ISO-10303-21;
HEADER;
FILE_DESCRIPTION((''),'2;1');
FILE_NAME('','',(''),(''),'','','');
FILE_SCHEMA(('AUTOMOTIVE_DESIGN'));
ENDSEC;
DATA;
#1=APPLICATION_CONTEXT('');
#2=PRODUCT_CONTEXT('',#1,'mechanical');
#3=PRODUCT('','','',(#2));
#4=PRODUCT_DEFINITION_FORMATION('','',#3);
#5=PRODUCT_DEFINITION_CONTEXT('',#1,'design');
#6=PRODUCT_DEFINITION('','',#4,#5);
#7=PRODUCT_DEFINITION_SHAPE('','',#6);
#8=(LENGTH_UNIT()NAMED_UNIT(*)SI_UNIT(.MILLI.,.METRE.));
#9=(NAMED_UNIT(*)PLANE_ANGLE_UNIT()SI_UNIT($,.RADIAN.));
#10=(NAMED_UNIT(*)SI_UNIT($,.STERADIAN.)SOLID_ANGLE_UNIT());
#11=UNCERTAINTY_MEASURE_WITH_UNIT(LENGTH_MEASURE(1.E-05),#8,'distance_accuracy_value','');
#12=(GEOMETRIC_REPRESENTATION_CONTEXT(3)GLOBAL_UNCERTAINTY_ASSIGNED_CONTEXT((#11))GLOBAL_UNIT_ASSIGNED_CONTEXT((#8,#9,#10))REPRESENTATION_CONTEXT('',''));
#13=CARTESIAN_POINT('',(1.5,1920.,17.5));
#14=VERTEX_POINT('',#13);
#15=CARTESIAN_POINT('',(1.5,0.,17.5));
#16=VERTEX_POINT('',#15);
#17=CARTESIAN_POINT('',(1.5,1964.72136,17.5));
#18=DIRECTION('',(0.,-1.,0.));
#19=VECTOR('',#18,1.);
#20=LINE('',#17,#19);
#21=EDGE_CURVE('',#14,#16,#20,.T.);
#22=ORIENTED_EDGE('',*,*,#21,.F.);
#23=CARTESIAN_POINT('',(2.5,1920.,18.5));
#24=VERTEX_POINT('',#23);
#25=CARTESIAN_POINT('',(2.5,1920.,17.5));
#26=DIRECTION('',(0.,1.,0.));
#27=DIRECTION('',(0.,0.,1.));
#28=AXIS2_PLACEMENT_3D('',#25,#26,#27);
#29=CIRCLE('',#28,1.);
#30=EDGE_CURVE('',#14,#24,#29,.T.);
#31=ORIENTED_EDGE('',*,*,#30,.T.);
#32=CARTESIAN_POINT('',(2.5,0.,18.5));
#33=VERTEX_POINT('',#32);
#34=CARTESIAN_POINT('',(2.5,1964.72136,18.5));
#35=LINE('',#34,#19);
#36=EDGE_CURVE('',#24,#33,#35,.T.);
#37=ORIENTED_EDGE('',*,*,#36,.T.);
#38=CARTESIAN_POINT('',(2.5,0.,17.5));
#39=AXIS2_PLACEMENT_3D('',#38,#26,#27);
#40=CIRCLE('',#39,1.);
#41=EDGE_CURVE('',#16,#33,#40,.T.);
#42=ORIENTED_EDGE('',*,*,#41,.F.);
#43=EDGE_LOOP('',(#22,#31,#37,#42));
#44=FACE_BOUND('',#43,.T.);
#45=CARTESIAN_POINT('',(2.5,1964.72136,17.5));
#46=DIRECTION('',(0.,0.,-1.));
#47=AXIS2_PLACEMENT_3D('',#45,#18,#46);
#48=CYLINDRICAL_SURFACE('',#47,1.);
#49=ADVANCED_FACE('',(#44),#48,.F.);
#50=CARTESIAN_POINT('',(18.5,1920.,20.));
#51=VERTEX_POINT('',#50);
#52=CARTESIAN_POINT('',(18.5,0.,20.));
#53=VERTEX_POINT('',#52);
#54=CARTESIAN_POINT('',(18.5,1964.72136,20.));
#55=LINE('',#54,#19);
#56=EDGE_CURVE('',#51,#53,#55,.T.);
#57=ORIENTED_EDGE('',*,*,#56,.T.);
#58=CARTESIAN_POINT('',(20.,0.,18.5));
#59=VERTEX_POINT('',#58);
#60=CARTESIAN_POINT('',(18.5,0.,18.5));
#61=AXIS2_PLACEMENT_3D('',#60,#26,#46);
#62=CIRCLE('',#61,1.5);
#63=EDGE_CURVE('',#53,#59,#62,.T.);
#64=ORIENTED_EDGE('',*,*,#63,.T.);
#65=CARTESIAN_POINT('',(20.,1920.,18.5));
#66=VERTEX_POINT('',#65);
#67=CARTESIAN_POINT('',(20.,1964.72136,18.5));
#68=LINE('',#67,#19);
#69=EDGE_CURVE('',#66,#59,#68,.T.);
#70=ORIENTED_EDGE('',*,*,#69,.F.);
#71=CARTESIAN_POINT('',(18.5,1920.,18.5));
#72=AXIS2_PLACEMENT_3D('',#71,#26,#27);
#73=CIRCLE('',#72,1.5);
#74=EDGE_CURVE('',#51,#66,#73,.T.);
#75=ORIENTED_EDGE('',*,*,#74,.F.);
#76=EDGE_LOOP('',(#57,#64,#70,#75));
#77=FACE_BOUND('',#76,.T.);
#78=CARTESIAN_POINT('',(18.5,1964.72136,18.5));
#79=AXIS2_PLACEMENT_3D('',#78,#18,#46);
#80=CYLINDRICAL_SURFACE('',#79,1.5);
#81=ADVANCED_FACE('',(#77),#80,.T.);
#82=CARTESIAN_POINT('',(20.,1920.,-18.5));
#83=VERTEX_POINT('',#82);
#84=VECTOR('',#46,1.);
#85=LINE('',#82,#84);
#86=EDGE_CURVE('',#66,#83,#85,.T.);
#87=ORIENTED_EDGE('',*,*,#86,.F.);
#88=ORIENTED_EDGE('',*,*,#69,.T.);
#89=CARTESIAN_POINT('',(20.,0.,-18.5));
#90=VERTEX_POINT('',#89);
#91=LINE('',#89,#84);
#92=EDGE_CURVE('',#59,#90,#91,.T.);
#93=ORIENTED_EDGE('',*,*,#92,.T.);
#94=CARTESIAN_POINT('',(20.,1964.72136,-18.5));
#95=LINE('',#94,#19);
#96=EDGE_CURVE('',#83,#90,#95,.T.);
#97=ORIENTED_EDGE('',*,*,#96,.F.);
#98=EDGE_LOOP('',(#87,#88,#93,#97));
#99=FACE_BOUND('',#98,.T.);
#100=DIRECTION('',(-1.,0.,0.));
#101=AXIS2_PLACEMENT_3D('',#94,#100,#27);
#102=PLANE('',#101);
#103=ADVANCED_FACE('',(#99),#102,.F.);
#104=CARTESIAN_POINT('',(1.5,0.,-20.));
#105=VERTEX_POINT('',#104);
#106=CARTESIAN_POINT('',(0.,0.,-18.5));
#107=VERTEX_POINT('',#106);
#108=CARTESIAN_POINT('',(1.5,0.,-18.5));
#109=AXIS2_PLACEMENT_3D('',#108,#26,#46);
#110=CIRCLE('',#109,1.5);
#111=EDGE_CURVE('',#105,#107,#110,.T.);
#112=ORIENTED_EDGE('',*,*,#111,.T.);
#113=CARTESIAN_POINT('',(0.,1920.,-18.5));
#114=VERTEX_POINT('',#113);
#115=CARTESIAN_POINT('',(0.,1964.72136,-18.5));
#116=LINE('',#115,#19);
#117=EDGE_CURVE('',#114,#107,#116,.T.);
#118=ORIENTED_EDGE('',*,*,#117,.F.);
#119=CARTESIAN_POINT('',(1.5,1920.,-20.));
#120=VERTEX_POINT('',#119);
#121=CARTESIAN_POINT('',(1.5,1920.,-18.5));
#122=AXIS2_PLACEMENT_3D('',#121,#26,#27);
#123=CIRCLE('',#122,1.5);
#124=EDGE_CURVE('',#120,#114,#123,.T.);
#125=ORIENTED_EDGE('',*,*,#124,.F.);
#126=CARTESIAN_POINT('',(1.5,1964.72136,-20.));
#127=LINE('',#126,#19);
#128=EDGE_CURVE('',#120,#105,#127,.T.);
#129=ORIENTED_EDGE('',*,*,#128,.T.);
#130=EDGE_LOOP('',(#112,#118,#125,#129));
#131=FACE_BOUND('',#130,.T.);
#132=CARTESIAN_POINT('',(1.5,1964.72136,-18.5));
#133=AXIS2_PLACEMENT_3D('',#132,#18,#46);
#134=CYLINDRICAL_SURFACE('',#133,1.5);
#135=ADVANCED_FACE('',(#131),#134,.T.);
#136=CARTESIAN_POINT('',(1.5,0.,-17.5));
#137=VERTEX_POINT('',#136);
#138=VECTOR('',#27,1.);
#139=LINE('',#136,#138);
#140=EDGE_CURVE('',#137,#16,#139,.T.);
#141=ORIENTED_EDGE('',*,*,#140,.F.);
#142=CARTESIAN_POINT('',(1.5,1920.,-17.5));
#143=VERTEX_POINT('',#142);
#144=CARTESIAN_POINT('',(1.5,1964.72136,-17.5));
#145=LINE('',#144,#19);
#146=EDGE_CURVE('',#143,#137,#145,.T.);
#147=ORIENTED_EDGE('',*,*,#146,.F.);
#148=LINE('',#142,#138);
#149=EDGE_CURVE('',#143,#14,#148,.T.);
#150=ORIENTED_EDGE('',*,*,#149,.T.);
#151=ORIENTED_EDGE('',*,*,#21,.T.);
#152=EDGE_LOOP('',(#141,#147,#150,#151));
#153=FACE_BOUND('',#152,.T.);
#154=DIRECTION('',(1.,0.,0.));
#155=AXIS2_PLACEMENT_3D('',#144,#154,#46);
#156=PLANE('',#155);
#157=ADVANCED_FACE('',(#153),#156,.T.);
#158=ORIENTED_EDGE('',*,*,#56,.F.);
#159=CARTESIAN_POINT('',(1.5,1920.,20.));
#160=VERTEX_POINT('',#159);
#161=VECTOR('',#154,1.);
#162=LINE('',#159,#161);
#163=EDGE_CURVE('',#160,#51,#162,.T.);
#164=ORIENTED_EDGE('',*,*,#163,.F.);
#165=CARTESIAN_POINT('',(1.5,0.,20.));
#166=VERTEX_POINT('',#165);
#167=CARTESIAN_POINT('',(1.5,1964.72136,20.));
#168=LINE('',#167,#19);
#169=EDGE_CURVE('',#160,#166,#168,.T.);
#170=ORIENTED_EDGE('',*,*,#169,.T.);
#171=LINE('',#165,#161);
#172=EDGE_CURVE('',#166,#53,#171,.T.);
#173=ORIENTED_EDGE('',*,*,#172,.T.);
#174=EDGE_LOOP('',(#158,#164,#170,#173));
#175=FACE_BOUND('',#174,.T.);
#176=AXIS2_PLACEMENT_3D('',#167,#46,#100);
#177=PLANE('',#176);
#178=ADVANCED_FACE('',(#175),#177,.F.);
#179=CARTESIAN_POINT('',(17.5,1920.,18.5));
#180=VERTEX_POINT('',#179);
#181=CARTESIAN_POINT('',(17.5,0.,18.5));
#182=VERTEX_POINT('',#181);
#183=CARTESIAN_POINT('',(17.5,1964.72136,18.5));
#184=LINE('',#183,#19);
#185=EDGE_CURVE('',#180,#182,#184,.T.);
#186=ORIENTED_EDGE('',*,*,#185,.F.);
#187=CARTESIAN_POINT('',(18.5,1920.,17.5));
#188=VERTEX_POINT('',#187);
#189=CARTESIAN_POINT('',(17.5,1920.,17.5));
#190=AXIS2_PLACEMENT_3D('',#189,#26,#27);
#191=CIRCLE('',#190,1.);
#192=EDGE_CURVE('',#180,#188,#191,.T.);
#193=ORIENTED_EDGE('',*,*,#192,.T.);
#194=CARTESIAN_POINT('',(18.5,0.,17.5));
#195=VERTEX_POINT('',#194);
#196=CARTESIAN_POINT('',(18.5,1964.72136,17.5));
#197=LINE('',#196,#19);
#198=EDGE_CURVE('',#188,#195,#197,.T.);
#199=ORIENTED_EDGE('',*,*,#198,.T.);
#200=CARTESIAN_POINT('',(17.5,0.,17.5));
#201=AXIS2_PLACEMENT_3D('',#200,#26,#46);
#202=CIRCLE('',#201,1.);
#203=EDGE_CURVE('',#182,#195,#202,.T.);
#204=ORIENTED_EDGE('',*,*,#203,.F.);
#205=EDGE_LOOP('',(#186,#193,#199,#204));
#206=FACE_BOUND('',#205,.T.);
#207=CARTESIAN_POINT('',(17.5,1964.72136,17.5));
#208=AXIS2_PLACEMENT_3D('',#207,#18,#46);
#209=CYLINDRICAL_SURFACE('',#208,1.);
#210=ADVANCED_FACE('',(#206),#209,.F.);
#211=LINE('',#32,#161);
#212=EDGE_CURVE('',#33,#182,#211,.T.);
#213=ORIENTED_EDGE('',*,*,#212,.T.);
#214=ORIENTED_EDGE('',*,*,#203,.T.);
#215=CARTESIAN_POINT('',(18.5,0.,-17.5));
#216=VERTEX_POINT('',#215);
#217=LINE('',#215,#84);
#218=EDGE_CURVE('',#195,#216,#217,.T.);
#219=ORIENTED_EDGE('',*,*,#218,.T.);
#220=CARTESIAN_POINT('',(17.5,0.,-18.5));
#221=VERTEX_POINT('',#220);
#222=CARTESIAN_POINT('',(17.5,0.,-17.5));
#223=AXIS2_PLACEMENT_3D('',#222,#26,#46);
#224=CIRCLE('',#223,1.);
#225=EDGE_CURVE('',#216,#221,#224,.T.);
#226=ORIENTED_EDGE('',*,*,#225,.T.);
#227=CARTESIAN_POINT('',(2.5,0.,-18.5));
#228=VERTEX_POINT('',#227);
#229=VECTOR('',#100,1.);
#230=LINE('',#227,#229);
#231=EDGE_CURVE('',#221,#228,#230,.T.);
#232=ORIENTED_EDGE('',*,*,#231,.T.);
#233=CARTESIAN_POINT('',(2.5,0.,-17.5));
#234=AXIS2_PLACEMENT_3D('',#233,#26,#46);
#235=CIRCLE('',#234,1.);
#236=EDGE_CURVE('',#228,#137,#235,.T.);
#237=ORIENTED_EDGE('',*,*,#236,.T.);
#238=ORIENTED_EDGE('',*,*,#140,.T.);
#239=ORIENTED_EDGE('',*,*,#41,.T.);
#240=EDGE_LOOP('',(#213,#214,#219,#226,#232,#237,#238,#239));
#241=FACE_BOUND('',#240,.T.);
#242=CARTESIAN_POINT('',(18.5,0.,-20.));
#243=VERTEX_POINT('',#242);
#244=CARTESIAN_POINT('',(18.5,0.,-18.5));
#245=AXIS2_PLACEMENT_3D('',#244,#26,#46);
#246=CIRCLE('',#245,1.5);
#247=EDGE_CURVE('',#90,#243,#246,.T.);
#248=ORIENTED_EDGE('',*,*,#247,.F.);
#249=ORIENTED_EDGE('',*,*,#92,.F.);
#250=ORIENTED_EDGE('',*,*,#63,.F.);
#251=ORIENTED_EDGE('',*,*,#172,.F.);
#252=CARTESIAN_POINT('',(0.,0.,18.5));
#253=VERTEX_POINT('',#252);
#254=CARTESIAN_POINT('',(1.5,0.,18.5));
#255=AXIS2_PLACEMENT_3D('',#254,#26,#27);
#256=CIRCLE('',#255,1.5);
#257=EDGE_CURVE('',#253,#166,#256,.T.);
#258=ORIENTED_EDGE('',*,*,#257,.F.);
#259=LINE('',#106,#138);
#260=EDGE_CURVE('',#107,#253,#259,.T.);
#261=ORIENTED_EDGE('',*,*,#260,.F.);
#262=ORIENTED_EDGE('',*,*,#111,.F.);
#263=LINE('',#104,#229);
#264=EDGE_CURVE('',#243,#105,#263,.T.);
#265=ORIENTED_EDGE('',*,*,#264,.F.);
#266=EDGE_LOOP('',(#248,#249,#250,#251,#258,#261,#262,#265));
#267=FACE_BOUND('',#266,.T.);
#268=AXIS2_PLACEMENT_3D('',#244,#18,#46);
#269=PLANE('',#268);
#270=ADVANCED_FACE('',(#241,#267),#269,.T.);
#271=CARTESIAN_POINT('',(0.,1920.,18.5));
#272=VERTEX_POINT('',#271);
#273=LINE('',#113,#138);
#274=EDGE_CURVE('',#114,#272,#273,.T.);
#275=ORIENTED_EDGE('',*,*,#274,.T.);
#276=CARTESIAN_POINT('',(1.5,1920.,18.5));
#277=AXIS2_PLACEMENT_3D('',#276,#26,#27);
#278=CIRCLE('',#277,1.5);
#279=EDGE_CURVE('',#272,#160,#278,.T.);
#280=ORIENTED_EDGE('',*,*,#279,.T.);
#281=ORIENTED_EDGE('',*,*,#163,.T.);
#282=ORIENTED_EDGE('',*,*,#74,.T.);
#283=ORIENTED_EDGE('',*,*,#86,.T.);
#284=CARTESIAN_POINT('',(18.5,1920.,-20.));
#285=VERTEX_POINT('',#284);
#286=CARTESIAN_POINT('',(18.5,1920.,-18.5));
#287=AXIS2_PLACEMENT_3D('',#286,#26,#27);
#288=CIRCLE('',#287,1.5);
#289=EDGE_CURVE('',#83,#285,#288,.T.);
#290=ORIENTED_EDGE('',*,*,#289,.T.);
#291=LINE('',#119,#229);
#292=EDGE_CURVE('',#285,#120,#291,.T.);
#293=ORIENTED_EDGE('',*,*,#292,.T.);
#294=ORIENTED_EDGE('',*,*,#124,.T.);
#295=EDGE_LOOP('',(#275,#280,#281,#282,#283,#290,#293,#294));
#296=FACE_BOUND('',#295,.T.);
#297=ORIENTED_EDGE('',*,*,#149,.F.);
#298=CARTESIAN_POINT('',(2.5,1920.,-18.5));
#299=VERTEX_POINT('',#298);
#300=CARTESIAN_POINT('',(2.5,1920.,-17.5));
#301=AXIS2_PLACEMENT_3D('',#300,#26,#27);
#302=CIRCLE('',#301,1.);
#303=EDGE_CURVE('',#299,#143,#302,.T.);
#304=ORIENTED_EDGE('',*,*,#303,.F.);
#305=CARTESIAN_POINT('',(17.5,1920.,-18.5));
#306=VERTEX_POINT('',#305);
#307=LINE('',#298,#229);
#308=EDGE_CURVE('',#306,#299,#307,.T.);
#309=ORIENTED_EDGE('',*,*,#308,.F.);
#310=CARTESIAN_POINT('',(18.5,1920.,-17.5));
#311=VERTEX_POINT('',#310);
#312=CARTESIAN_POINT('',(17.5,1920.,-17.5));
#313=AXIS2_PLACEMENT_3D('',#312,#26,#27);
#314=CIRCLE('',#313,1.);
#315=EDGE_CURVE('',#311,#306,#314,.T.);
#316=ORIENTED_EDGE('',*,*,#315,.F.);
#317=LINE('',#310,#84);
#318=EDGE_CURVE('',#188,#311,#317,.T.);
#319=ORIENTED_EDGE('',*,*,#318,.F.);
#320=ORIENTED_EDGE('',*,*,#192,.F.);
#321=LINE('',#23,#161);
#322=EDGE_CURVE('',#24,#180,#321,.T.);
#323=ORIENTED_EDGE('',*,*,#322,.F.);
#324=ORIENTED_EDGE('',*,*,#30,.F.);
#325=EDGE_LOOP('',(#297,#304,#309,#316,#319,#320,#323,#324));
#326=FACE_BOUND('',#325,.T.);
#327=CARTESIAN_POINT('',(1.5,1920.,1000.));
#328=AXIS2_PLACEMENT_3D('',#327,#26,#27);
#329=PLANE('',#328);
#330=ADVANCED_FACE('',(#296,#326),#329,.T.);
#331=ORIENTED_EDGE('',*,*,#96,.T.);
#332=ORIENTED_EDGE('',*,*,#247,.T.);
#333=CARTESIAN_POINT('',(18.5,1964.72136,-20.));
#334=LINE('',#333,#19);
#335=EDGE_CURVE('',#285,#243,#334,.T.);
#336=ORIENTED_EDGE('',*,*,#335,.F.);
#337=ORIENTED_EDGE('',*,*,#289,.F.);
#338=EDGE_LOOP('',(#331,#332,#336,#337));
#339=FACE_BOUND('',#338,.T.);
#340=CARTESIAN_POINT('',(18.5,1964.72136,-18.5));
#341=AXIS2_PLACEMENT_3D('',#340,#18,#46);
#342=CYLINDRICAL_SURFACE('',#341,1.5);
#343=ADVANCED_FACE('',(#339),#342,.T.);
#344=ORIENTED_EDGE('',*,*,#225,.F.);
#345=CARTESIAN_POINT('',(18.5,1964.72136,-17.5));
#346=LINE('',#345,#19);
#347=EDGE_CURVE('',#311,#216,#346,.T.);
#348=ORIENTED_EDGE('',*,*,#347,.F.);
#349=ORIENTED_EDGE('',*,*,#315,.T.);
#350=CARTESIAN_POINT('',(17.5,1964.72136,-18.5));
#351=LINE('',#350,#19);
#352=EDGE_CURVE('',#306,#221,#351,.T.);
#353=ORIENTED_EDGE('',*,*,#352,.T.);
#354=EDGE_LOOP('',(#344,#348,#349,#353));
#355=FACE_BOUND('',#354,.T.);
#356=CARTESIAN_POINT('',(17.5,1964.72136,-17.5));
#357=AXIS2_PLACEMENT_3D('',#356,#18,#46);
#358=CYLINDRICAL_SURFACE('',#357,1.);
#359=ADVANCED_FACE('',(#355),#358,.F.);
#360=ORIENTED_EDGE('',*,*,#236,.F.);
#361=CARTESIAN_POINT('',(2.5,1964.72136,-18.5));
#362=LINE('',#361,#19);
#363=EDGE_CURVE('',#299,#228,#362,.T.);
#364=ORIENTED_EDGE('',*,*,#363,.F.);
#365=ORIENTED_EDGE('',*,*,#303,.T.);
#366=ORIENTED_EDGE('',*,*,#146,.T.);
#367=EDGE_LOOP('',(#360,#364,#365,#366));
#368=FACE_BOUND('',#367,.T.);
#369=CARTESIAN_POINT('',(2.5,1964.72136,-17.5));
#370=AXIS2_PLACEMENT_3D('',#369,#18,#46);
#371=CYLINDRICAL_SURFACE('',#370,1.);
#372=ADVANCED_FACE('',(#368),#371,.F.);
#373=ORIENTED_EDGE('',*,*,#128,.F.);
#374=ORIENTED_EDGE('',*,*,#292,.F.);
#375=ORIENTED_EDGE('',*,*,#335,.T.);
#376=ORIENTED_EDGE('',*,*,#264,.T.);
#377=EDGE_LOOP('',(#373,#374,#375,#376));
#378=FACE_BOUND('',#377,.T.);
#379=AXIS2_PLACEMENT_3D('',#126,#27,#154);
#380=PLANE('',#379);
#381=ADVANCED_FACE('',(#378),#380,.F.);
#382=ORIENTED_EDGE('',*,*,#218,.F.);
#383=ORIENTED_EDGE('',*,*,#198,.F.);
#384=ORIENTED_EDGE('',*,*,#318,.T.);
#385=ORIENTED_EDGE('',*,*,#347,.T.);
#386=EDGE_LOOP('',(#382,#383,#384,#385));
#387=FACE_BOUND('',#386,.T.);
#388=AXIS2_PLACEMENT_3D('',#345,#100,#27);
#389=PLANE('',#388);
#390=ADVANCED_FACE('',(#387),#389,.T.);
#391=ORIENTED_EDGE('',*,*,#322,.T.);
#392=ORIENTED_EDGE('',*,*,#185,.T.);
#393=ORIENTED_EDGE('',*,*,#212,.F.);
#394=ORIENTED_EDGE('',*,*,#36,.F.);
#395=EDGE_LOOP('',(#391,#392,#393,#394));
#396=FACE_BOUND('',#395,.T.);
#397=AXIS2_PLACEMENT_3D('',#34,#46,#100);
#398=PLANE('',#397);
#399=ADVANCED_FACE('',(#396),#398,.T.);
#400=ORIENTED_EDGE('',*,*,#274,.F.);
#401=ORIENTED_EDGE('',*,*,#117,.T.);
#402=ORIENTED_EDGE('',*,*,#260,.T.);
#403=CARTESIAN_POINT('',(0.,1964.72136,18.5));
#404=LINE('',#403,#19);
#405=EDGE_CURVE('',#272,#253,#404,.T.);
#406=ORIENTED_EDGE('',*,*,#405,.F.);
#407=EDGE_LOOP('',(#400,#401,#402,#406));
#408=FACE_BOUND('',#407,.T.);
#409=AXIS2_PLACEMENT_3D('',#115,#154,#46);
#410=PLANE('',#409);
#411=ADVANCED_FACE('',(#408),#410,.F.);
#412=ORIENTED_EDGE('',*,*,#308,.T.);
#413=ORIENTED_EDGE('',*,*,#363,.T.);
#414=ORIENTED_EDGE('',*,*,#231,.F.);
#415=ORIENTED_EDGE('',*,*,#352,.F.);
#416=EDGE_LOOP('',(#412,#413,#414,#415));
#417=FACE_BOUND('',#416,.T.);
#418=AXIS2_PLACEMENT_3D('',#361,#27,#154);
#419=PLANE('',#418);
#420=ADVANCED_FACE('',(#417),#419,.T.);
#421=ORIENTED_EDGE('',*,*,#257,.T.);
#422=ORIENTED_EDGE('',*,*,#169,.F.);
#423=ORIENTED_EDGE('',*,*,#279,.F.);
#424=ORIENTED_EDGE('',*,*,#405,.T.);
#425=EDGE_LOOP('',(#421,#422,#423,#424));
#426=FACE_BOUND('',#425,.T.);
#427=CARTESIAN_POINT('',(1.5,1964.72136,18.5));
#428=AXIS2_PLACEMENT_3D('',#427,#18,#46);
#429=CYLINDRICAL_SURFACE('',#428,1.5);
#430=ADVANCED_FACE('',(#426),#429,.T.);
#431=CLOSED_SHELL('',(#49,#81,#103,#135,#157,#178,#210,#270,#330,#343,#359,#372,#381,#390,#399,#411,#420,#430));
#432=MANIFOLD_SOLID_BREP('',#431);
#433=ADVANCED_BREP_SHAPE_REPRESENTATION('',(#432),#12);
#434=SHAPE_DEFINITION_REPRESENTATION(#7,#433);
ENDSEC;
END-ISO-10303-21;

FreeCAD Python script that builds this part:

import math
import FreeCAD as App
import Part
import Sketcher
from FreeCAD import Vector

doc = App.newDocument("Part")
params = doc.addObject("Spreadsheet::Sheet", "Params")
for row, (alias, value) in enumerate([
    ("sketch1_radius", "1 mm"),
    ("sketch1_radius2", "1.5 mm"),
    ("sketch1_width", "17 mm"),
    ("sketch1_height", "37 mm"),
    ("pad1_length", "1920 mm"),
], start=1):
    params.set(f"A{row}", alias)
    params.set(f"B{row}", "=" + value)
    params.setAlias(f"B{row}", alias)

body = doc.addObject("PartDesign::Body", "Body")

# Sketch on XZ plane
sketch1 = body.newObject("Sketcher::SketchObject", "Sketch")
sketch1.AttachmentSupport = (doc.getObject("XZ_Plane"), [""])
sketch1.MapMode = "FlatFace"
sketch1.addGeometry([
    Part.LineSegment(Vector(0, -18.5, 0), Vector(0, 18.5, 0)),  # 0
    Part.ArcOfCircle(Part.Circle(Vector(1.5, 18.5, 0), Vector(0, 0, 1), 1.5), math.radians(90), math.radians(180)),  # 1
    Part.LineSegment(Vector(1.5, 20, 0), Vector(18.5, 20, 0)),  # 2
    Part.ArcOfCircle(Part.Circle(Vector(18.5, 18.5, 0), Vector(0, 0, 1), 1.5), math.radians(0), math.radians(90)),  # 3
    Part.LineSegment(Vector(20, 18.5, 0), Vector(20, -18.5, 0)),  # 4
    Part.ArcOfCircle(Part.Circle(Vector(18.5, -18.5, 0), Vector(0, 0, 1), 1.5), math.radians(-90), math.radians(0)),  # 5
    Part.LineSegment(Vector(18.5, -20, 0), Vector(1.5, -20, 0)),  # 6
    Part.ArcOfCircle(Part.Circle(Vector(1.5, -18.5, 0), Vector(0, 0, 1), 1.5), math.radians(180), math.radians(270)),  # 7
    Part.LineSegment(Vector(1.5, 17.5, 0), Vector(1.5, -17.5, 0)),  # 8
    Part.ArcOfCircle(Part.Circle(Vector(2.5, -17.5, 0), Vector(0, 0, 1), 1), math.radians(-180), math.radians(-90)),  # 9
    Part.LineSegment(Vector(2.5, -18.5, 0), Vector(17.5, -18.5, 0)),  # 10
    Part.ArcOfCircle(Part.Circle(Vector(17.5, -17.5, 0), Vector(0, 0, 1), 1), math.radians(-90), math.radians(0)),  # 11
    Part.LineSegment(Vector(18.5, -17.5, 0), Vector(18.5, 17.5, 0)),  # 12
    Part.ArcOfCircle(Part.Circle(Vector(17.5, 17.5, 0), Vector(0, 0, 1), 1), math.radians(0), math.radians(90)),  # 13
    Part.LineSegment(Vector(17.5, 18.5, 0), Vector(2.5, 18.5, 0)),  # 14
    Part.ArcOfCircle(Part.Circle(Vector(2.5, 17.5, 0), Vector(0, 0, 1), 1), math.radians(90), math.radians(180)),  # 15
], False)
sketch1.addConstraint([
    Sketcher.Constraint("Tangent", 0, 2, 1, 2),
    Sketcher.Constraint("Tangent", 1, 1, 2, 1),
    Sketcher.Constraint("Tangent", 2, 2, 3, 2),
    Sketcher.Constraint("Tangent", 3, 1, 4, 1),
    Sketcher.Constraint("Tangent", 4, 2, 5, 2),
    Sketcher.Constraint("Tangent", 5, 1, 6, 1),
    Sketcher.Constraint("Tangent", 6, 2, 7, 2),
    Sketcher.Constraint("Tangent", 7, 1, 0, 1),
    Sketcher.Constraint("Tangent", 8, 2, 9, 1),
    Sketcher.Constraint("Tangent", 9, 2, 10, 1),
    Sketcher.Constraint("Tangent", 10, 2, 11, 1),
    Sketcher.Constraint("Tangent", 11, 2, 12, 1),
    Sketcher.Constraint("Tangent", 12, 2, 13, 1),
    Sketcher.Constraint("Tangent", 13, 2, 14, 1),
    Sketcher.Constraint("Tangent", 14, 2, 15, 1),
    Sketcher.Constraint("Tangent", 15, 2, 8, 1),
    Sketcher.Constraint("Vertical", 0),
    Sketcher.Constraint("Horizontal", 2),
    Sketcher.Constraint("Vertical", 4),
    Sketcher.Constraint("Horizontal", 6),
    Sketcher.Constraint("Vertical", 8),
    Sketcher.Constraint("Horizontal", 10),
    Sketcher.Constraint("Vertical", 12),
    Sketcher.Constraint("Horizontal", 14),
    Sketcher.Constraint("Equal", 1, 3),
    Sketcher.Constraint("Equal", 3, 5),
    Sketcher.Constraint("Equal", 5, 7),
    Sketcher.Constraint("Equal", 9, 11),
    Sketcher.Constraint("Equal", 11, 13),
    Sketcher.Constraint("Equal", 13, 15),
    Sketcher.Constraint("Symmetric", 0, 2, 7, 1, -1, 1),
    Sketcher.Constraint("Horizontal", 7, 1, 9, 2),
    Sketcher.Constraint("Horizontal", 3, 1, 13, 2),
    Sketcher.Constraint("Vertical", 6, 2, 8, 2),
    Sketcher.Constraint("Vertical", 5, 1, 11, 2),
    Sketcher.Constraint("Radius", 9, 1.0),
    Sketcher.Constraint("Radius", 1, 1.5),
    Sketcher.Constraint("DistanceX", 2, 1, 2, 2, 17.0),
    Sketcher.Constraint("DistanceY", 0, 1, 0, 2, 37.0),
])
sketch1.setExpression("Constraints[35]", "Params.sketch1_radius")
sketch1.setExpression("Constraints[36]", "Params.sketch1_radius2")
sketch1.setExpression("Constraints[37]", "Params.sketch1_width")
sketch1.setExpression("Constraints[38]", "Params.sketch1_height")
pad1 = body.newObject("PartDesign::Pad", "Pad")
pad1.Profile = sketch1
pad1.setExpression("Length", "Params.pad1_length")
pad1.Reversed = True

doc.recompute()
